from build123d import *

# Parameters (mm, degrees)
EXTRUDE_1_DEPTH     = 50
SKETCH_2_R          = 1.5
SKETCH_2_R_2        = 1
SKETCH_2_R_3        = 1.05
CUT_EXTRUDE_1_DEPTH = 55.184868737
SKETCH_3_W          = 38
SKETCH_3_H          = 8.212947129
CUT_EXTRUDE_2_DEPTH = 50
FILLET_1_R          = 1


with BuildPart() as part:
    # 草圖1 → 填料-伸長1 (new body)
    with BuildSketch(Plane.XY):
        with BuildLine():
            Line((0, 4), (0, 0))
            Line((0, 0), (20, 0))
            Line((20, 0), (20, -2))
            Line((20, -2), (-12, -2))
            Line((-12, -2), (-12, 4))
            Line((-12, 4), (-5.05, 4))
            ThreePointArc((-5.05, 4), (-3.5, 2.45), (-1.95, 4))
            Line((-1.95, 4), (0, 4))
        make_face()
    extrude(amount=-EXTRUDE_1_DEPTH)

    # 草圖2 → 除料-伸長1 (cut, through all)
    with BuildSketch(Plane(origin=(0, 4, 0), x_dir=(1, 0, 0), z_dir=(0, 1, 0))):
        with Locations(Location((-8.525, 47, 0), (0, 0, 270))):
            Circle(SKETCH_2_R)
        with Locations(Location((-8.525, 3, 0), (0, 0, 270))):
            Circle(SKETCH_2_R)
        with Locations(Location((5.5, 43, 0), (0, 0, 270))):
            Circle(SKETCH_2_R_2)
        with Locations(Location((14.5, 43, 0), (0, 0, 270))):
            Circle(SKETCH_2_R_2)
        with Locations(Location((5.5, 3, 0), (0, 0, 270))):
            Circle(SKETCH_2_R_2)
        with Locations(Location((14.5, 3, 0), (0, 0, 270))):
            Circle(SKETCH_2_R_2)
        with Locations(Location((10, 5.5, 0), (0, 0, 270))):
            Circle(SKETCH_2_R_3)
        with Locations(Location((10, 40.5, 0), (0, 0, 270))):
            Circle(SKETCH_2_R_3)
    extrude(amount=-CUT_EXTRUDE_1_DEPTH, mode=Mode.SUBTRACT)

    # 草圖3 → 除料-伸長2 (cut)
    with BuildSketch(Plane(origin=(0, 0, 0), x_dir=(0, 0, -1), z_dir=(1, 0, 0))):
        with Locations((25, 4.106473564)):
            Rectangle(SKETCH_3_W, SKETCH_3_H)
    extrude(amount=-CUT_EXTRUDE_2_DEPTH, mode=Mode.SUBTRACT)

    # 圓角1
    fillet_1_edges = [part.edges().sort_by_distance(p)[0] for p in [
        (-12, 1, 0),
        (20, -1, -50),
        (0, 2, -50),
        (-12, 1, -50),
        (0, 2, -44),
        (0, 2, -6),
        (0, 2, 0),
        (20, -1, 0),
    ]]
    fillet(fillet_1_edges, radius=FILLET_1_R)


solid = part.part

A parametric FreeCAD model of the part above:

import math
import FreeCAD as App
import Part
import Sketcher


def edges_at(feature, points):
    """Names of the edges that pass closest to the given points."""
    edges = feature.Shape.Edges
    near = lambda p: min(range(len(edges)), key=lambda i: edges[i].distToShape(Part.Vertex(*p))[0])
    return sorted({f"Edge{near(p) + 1}" for p in points})


def add_polygon(sketch, points):
    """Adds a closed chain of lines whose ends are joined by coincident constraints."""
    first, n = sketch.GeometryCount, len(points)
    for a, b in zip(points, points[1:] + points[:1]):
        sketch.addGeometry(Part.LineSegment(App.Vector(*a, 0), App.Vector(*b, 0)), False)
    for i in range(n):
        sketch.addConstraint(Sketcher.Constraint("Coincident", first + i, 2, first + (i + 1) % n, 1))

doc = App.newDocument("Part")
body = doc.addObject("PartDesign::Body", "Body")

# Sketch on XY plane
sketch1 = body.newObject("Sketcher::SketchObject", "Sketch")
sketch1.AttachmentSupport = (doc.getObject("XY_Plane"), [""])
sketch1.MapMode = "FlatFace"
sketch1.addGeometry([
    Part.LineSegment(App.Vector(0, 0, 0), App.Vector(0, 4, 0)),  # 0
    Part.LineSegment(App.Vector(0, 4, 0), App.Vector(-1.9, 4, 0)),  # 1
    Part.ArcOfCircle(Part.Circle(App.Vector(-3.5, 4, 0), App.Vector(0, 0, 1), 1.6), math.radians(180), math.radians(360)),  # 2
    Part.LineSegment(App.Vector(-5, 4, 0), App.Vector(-12, 4, 0)),  # 3
    Part.LineSegment(App.Vector(-12, 4, 0), App.Vector(-12, -2, 0)),  # 4
    Part.LineSegment(App.Vector(-12, -2, 0), App.Vector(20, -2, 0)),  # 5
    Part.LineSegment(App.Vector(20, -2, 0), App.Vector(20, 0, 0)),  # 6
    Part.LineSegment(App.Vector(20, 0, 0), App.Vector(0, 0, 0)),  # 7
], False)
sketch1.addConstraint([
    Sketcher.Constraint("Coincident", 0, 2, 1, 1),
    Sketcher.Constraint("Coincident", 1, 2, 2, 2),
    Sketcher.Constraint("Coincident", 2, 1, 3, 1),
    Sketcher.Constraint("Coincident", 3, 2, 4, 1),
    Sketcher.Constraint("Coincident", 4, 2, 5, 1),
    Sketcher.Constraint("Coincident", 5, 2, 6, 1),
    Sketcher.Constraint("Coincident", 6, 2, 7, 1),
    Sketcher.Constraint("Coincident", 7, 2, 0, 1),
    Sketcher.Constraint("Vertical", 0),
    Sketcher.Constraint("Horizontal", 1),
    Sketcher.Constraint("Horizontal", 3),
    Sketcher.Constraint("Vertical", 4),
    Sketcher.Constraint("Horizontal", 5),
    Sketcher.Constraint("Vertical", 6),
    Sketcher.Constraint("Horizontal", 7),
    Sketcher.Constraint("Coincident", 7, 2, -1, 1),
    Sketcher.Constraint("Horizontal", 2, 3, 0, 2),
    Sketcher.Constraint("Horizontal", 1, 2, 2, 1),
    Sketcher.Constraint("DistanceX", 5, 1, 5, 2, 32.0),
    Sketcher.Constraint("DistanceX", 7, 2, 7, 1, 20.0),
    Sketcher.Constraint("DistanceY", 0, 1, 0, 2, 4.0),
    Sketcher.Constraint("DistanceY", 4, 2, 4, 1, 6.0),
    Sketcher.Constraint("Radius", 2, 1.55),
    Sketcher.Constraint("DistanceX", 1, 2, 1, 1, 1.95),
])
pad1 = body.newObject("PartDesign::Pad", "Pad")
pad1.Profile = sketch1
pad1.Length = 50
pad1.Reversed = True

# Sketch on XZ plane
sketch2 = body.newObject("Sketcher::SketchObject", "Sketch001")
sketch2.AttachmentSupport = (doc.getObject("XZ_Plane"), [""])
sketch2.MapMode = "FlatFace"
sketch2.AttachmentOffset = App.Placement(App.Vector(0, 0, -4), App.Rotation())
sketch2.addGeometry([
    Part.Circle(App.Vector(-8.5, -47, 0), App.Vector(0, 0, 1), 1.5),  # 0
    Part.Circle(App.Vector(-8.5, -3, 0), App.Vector(0, 0, 1), 1.5),  # 1
    Part.Circle(App.Vector(5.5, -43, 0), App.Vector(0, 0, 1), 1),  # 2
    Part.Circle(App.Vector(14.5, -43, 0), App.Vector(0, 0, 1), 1),  # 3
    Part.Circle(App.Vector(5.5, -3, 0), App.Vector(0, 0, 1), 1),  # 4
    Part.Circle(App.Vector(14.5, -3, 0), App.Vector(0, 0, 1), 1),  # 5
    Part.Circle(App.Vector(10, -5.5, 0), App.Vector(0, 0, 1), 1.1),  # 6
    Part.Circle(App.Vector(10, -40.5, 0), App.Vector(0, 0, 1), 1.1),  # 7
], False)
sketch2.addConstraint([
    Sketcher.Constraint("Equal", 0, 1),
    Sketcher.Constraint("Equal", 2, 3),
    Sketcher.Constraint("Equal", 3, 4),
    Sketcher.Constraint("Equal", 4, 5),
    Sketcher.Constraint("Equal", 6, 7),
    Sketcher.Constraint("Horizontal", 2, 3, 3, 3),
    Sketcher.Constraint("Horizontal", 1, 3, 4, 3),
    Sketcher.Constraint("Horizontal", 4, 3, 5, 3),
    Sketcher.Constraint("Vertical", 0, 3, 1, 3),
    Sketcher.Constraint("Vertical", 2, 3, 4, 3),
    Sketcher.Constraint("Vertical", 3, 3, 5, 3),
    Sketcher.Constraint("Vertical", 6, 3, 7, 3),
    Sketcher.Constraint("Diameter", 0, 3.0),
    Sketcher.Constraint("Diameter", 2, 2.0),
    Sketcher.Constraint("Diameter", 6, 2.1),
    Sketcher.Constraint("DistanceY", 0, 3, -1, 1, 47.0),
    Sketcher.Constraint("DistanceY", 1, 3, -1, 1, 3.0),
    Sketcher.Constraint("DistanceY", 2, 3, -1, 1, 43.0),
    Sketcher.Constraint("DistanceX", -1, 1, 6, 3, 10.0),
    Sketcher.Constraint("DistanceX", 2, 3, 3, 3, 9.0),
    Sketcher.Constraint("DistanceY", 7, 3, 6, 3, 35.0),
    Sketcher.Constraint("DistanceX", -1, 1, 2, 3, 5.5),
    Sketcher.Constraint("DistanceY", 6, 3, -1, 1, 5.5),
    Sketcher.Constraint("DistanceX", 0, 3, -1, 1, 8.525),
])
pocket1 = body.newObject("PartDesign::Pocket", "Pocket")
pocket1.Profile = sketch2
pocket1.Type = "ThroughAll"
pocket1.Reversed = True

# Sketch on YZ plane
sketch3 = body.newObject("Sketcher::SketchObject", "Sketch002")
sketch3.AttachmentSupport = (doc.getObject("YZ_Plane"), [""])
sketch3.MapMode = "FlatFace"
add_polygon(sketch3, [(8, -6), (0, -6), (0, -44), (8, -44)])  # lines 0-3
sketch3.addConstraint([
    Sketcher.Constraint("Horizontal", 0),
    Sketcher.Constraint("Vertical", 1),
    Sketcher.Constraint("Horizontal", 2),
    Sketcher.Constraint("Vertical", 3),
    Sketcher.Constraint("PointOnObject", 0, 2, -2),
    Sketcher.Constraint("DistanceY", 1, 2, 1, 1, 38.0),
    Sketcher.Constraint("DistanceY", 0, 2, -1, 1, 6.0),
    Sketcher.Constraint("DistanceX", 0, 2, 0, 1, 8.212947),
])
pocket2 = body.newObject("PartDesign::Pocket", "Pocket001")
pocket2.Profile = sketch3
pocket2.Length = 50
doc.recompute()

fillet = body.newObject("PartDesign::Fillet", "Fillet")
fillet.Base = (pocket2, edges_at(pocket2, [
    (-12, 1, 0),
    (20, -1, -50),
    (0, 2, -50),
    (-12, 1, -50),
    (0, 2, -44),
    (0, 2, -6),
    (0, 2, 0),
    (20, -1, 0),
]))
fillet.Radius = 1

doc.recompute()
